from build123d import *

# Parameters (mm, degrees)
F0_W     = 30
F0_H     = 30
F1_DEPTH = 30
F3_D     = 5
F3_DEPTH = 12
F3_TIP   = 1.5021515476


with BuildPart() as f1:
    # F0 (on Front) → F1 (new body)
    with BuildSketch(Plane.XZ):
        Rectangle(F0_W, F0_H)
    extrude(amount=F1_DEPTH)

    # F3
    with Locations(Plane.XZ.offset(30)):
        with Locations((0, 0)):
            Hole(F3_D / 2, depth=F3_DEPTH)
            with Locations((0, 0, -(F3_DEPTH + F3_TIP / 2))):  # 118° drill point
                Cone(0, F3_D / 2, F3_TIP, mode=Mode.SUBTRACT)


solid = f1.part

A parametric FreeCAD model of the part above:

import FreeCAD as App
import Part
import Sketcher

V = App.Vector

doc = App.newDocument("Part")
params = doc.addObject("Spreadsheet::Sheet", "Params")
for row, (alias, value) in enumerate([
    ("sketch1_width", "30 mm"),
    ("pad1_length", "30 mm"),
    ("sketch2_diameter", "5 mm"),
    ("hole_diameter", "5 mm"),
    ("hole_depth", "12 mm"),
], start=1):
    params.set(f"A{row}", alias)
    params.set(f"B{row}", "=" + value)
    params.setAlias(f"B{row}", alias)

body = doc.addObject("PartDesign::Body", "Body")

sketch1 = body.newObject("Sketcher::SketchObject", "Sketch")
sketch1.AttachmentSupport = (doc.getObject("XZ_Plane"), [""])
sketch1.MapMode = "FlatFace"
sketch1.addGeometry(Part.LineSegment(V(-15, 15, 0), V(-15, -15, 0)), False)
sketch1.addGeometry(Part.LineSegment(V(-15, -15, 0), V(15, -15, 0)), False)
sketch1.addGeometry(Part.LineSegment(V(15, -15, 0), V(15, 15, 0)), False)
sketch1.addGeometry(Part.LineSegment(V(15, 15, 0), V(-15, 15, 0)), False)
sketch1.addConstraint(Sketcher.Constraint("Coincident", 0, 2, 1, 1))
sketch1.addConstraint(Sketcher.Constraint("Coincident", 1, 2, 2, 1))
sketch1.addConstraint(Sketcher.Constraint("Coincident", 2, 2, 3, 1))
sketch1.addConstraint(Sketcher.Constraint("Coincident", 3, 2, 0, 1))
sketch1.addConstraint(Sketcher.Constraint("Vertical", 0))
sketch1.addConstraint(Sketcher.Constraint("Horizontal", 1))
sketch1.addConstraint(Sketcher.Constraint("Vertical", 2))
sketch1.addConstraint(Sketcher.Constraint("Horizontal", 3))
sketch1.addConstraint(Sketcher.Constraint("Symmetric", 0, 2, 2, 2, -1, 1))
sketch1.addConstraint(Sketcher.Constraint("Equal", 3, 0))
sketch1.addConstraint(Sketcher.Constraint("DistanceX", 1, 1, 1, 2, 30.0))
sketch1.setExpression("Constraints[10]", "Params.sketch1_width")
pad1 = body.newObject("PartDesign::Pad", "Pad")
pad1.Profile = sketch1
pad1.setExpression("Length", "Params.pad1_length")

sketch2 = body.newObject("Sketcher::SketchObject", "Sketch001")
sketch2.AttachmentSupport = (doc.getObject("XZ_Plane"), [""])
sketch2.MapMode = "FlatFace"
sketch2.AttachmentOffset = App.Placement(V(0, 0, 30), App.Rotation())
sketch2.addGeometry(Part.Circle(V(0, 0, 0), V(0, 0, 1), 2.5), False)
sketch2.addConstraint(Sketcher.Constraint("Coincident", 0, 3, -1, 1))
sketch2.addConstraint(Sketcher.Constraint("Diameter", 0, 5.0))
sketch2.setExpression("Constraints[1]", "Params.sketch2_diameter")
doc.recompute()
hole = body.newObject("PartDesign::Hole", "Hole")
hole.Profile = sketch2
hole.ThreadType = "None"
hole.setExpression("Diameter", "Params.hole_diameter")
hole.DepthType = "Dimension"
hole.setExpression("Depth", "Params.hole_depth")
hole.DrillPoint = "Angled"
hole.DrillPointAngle = 118

doc.recompute()
